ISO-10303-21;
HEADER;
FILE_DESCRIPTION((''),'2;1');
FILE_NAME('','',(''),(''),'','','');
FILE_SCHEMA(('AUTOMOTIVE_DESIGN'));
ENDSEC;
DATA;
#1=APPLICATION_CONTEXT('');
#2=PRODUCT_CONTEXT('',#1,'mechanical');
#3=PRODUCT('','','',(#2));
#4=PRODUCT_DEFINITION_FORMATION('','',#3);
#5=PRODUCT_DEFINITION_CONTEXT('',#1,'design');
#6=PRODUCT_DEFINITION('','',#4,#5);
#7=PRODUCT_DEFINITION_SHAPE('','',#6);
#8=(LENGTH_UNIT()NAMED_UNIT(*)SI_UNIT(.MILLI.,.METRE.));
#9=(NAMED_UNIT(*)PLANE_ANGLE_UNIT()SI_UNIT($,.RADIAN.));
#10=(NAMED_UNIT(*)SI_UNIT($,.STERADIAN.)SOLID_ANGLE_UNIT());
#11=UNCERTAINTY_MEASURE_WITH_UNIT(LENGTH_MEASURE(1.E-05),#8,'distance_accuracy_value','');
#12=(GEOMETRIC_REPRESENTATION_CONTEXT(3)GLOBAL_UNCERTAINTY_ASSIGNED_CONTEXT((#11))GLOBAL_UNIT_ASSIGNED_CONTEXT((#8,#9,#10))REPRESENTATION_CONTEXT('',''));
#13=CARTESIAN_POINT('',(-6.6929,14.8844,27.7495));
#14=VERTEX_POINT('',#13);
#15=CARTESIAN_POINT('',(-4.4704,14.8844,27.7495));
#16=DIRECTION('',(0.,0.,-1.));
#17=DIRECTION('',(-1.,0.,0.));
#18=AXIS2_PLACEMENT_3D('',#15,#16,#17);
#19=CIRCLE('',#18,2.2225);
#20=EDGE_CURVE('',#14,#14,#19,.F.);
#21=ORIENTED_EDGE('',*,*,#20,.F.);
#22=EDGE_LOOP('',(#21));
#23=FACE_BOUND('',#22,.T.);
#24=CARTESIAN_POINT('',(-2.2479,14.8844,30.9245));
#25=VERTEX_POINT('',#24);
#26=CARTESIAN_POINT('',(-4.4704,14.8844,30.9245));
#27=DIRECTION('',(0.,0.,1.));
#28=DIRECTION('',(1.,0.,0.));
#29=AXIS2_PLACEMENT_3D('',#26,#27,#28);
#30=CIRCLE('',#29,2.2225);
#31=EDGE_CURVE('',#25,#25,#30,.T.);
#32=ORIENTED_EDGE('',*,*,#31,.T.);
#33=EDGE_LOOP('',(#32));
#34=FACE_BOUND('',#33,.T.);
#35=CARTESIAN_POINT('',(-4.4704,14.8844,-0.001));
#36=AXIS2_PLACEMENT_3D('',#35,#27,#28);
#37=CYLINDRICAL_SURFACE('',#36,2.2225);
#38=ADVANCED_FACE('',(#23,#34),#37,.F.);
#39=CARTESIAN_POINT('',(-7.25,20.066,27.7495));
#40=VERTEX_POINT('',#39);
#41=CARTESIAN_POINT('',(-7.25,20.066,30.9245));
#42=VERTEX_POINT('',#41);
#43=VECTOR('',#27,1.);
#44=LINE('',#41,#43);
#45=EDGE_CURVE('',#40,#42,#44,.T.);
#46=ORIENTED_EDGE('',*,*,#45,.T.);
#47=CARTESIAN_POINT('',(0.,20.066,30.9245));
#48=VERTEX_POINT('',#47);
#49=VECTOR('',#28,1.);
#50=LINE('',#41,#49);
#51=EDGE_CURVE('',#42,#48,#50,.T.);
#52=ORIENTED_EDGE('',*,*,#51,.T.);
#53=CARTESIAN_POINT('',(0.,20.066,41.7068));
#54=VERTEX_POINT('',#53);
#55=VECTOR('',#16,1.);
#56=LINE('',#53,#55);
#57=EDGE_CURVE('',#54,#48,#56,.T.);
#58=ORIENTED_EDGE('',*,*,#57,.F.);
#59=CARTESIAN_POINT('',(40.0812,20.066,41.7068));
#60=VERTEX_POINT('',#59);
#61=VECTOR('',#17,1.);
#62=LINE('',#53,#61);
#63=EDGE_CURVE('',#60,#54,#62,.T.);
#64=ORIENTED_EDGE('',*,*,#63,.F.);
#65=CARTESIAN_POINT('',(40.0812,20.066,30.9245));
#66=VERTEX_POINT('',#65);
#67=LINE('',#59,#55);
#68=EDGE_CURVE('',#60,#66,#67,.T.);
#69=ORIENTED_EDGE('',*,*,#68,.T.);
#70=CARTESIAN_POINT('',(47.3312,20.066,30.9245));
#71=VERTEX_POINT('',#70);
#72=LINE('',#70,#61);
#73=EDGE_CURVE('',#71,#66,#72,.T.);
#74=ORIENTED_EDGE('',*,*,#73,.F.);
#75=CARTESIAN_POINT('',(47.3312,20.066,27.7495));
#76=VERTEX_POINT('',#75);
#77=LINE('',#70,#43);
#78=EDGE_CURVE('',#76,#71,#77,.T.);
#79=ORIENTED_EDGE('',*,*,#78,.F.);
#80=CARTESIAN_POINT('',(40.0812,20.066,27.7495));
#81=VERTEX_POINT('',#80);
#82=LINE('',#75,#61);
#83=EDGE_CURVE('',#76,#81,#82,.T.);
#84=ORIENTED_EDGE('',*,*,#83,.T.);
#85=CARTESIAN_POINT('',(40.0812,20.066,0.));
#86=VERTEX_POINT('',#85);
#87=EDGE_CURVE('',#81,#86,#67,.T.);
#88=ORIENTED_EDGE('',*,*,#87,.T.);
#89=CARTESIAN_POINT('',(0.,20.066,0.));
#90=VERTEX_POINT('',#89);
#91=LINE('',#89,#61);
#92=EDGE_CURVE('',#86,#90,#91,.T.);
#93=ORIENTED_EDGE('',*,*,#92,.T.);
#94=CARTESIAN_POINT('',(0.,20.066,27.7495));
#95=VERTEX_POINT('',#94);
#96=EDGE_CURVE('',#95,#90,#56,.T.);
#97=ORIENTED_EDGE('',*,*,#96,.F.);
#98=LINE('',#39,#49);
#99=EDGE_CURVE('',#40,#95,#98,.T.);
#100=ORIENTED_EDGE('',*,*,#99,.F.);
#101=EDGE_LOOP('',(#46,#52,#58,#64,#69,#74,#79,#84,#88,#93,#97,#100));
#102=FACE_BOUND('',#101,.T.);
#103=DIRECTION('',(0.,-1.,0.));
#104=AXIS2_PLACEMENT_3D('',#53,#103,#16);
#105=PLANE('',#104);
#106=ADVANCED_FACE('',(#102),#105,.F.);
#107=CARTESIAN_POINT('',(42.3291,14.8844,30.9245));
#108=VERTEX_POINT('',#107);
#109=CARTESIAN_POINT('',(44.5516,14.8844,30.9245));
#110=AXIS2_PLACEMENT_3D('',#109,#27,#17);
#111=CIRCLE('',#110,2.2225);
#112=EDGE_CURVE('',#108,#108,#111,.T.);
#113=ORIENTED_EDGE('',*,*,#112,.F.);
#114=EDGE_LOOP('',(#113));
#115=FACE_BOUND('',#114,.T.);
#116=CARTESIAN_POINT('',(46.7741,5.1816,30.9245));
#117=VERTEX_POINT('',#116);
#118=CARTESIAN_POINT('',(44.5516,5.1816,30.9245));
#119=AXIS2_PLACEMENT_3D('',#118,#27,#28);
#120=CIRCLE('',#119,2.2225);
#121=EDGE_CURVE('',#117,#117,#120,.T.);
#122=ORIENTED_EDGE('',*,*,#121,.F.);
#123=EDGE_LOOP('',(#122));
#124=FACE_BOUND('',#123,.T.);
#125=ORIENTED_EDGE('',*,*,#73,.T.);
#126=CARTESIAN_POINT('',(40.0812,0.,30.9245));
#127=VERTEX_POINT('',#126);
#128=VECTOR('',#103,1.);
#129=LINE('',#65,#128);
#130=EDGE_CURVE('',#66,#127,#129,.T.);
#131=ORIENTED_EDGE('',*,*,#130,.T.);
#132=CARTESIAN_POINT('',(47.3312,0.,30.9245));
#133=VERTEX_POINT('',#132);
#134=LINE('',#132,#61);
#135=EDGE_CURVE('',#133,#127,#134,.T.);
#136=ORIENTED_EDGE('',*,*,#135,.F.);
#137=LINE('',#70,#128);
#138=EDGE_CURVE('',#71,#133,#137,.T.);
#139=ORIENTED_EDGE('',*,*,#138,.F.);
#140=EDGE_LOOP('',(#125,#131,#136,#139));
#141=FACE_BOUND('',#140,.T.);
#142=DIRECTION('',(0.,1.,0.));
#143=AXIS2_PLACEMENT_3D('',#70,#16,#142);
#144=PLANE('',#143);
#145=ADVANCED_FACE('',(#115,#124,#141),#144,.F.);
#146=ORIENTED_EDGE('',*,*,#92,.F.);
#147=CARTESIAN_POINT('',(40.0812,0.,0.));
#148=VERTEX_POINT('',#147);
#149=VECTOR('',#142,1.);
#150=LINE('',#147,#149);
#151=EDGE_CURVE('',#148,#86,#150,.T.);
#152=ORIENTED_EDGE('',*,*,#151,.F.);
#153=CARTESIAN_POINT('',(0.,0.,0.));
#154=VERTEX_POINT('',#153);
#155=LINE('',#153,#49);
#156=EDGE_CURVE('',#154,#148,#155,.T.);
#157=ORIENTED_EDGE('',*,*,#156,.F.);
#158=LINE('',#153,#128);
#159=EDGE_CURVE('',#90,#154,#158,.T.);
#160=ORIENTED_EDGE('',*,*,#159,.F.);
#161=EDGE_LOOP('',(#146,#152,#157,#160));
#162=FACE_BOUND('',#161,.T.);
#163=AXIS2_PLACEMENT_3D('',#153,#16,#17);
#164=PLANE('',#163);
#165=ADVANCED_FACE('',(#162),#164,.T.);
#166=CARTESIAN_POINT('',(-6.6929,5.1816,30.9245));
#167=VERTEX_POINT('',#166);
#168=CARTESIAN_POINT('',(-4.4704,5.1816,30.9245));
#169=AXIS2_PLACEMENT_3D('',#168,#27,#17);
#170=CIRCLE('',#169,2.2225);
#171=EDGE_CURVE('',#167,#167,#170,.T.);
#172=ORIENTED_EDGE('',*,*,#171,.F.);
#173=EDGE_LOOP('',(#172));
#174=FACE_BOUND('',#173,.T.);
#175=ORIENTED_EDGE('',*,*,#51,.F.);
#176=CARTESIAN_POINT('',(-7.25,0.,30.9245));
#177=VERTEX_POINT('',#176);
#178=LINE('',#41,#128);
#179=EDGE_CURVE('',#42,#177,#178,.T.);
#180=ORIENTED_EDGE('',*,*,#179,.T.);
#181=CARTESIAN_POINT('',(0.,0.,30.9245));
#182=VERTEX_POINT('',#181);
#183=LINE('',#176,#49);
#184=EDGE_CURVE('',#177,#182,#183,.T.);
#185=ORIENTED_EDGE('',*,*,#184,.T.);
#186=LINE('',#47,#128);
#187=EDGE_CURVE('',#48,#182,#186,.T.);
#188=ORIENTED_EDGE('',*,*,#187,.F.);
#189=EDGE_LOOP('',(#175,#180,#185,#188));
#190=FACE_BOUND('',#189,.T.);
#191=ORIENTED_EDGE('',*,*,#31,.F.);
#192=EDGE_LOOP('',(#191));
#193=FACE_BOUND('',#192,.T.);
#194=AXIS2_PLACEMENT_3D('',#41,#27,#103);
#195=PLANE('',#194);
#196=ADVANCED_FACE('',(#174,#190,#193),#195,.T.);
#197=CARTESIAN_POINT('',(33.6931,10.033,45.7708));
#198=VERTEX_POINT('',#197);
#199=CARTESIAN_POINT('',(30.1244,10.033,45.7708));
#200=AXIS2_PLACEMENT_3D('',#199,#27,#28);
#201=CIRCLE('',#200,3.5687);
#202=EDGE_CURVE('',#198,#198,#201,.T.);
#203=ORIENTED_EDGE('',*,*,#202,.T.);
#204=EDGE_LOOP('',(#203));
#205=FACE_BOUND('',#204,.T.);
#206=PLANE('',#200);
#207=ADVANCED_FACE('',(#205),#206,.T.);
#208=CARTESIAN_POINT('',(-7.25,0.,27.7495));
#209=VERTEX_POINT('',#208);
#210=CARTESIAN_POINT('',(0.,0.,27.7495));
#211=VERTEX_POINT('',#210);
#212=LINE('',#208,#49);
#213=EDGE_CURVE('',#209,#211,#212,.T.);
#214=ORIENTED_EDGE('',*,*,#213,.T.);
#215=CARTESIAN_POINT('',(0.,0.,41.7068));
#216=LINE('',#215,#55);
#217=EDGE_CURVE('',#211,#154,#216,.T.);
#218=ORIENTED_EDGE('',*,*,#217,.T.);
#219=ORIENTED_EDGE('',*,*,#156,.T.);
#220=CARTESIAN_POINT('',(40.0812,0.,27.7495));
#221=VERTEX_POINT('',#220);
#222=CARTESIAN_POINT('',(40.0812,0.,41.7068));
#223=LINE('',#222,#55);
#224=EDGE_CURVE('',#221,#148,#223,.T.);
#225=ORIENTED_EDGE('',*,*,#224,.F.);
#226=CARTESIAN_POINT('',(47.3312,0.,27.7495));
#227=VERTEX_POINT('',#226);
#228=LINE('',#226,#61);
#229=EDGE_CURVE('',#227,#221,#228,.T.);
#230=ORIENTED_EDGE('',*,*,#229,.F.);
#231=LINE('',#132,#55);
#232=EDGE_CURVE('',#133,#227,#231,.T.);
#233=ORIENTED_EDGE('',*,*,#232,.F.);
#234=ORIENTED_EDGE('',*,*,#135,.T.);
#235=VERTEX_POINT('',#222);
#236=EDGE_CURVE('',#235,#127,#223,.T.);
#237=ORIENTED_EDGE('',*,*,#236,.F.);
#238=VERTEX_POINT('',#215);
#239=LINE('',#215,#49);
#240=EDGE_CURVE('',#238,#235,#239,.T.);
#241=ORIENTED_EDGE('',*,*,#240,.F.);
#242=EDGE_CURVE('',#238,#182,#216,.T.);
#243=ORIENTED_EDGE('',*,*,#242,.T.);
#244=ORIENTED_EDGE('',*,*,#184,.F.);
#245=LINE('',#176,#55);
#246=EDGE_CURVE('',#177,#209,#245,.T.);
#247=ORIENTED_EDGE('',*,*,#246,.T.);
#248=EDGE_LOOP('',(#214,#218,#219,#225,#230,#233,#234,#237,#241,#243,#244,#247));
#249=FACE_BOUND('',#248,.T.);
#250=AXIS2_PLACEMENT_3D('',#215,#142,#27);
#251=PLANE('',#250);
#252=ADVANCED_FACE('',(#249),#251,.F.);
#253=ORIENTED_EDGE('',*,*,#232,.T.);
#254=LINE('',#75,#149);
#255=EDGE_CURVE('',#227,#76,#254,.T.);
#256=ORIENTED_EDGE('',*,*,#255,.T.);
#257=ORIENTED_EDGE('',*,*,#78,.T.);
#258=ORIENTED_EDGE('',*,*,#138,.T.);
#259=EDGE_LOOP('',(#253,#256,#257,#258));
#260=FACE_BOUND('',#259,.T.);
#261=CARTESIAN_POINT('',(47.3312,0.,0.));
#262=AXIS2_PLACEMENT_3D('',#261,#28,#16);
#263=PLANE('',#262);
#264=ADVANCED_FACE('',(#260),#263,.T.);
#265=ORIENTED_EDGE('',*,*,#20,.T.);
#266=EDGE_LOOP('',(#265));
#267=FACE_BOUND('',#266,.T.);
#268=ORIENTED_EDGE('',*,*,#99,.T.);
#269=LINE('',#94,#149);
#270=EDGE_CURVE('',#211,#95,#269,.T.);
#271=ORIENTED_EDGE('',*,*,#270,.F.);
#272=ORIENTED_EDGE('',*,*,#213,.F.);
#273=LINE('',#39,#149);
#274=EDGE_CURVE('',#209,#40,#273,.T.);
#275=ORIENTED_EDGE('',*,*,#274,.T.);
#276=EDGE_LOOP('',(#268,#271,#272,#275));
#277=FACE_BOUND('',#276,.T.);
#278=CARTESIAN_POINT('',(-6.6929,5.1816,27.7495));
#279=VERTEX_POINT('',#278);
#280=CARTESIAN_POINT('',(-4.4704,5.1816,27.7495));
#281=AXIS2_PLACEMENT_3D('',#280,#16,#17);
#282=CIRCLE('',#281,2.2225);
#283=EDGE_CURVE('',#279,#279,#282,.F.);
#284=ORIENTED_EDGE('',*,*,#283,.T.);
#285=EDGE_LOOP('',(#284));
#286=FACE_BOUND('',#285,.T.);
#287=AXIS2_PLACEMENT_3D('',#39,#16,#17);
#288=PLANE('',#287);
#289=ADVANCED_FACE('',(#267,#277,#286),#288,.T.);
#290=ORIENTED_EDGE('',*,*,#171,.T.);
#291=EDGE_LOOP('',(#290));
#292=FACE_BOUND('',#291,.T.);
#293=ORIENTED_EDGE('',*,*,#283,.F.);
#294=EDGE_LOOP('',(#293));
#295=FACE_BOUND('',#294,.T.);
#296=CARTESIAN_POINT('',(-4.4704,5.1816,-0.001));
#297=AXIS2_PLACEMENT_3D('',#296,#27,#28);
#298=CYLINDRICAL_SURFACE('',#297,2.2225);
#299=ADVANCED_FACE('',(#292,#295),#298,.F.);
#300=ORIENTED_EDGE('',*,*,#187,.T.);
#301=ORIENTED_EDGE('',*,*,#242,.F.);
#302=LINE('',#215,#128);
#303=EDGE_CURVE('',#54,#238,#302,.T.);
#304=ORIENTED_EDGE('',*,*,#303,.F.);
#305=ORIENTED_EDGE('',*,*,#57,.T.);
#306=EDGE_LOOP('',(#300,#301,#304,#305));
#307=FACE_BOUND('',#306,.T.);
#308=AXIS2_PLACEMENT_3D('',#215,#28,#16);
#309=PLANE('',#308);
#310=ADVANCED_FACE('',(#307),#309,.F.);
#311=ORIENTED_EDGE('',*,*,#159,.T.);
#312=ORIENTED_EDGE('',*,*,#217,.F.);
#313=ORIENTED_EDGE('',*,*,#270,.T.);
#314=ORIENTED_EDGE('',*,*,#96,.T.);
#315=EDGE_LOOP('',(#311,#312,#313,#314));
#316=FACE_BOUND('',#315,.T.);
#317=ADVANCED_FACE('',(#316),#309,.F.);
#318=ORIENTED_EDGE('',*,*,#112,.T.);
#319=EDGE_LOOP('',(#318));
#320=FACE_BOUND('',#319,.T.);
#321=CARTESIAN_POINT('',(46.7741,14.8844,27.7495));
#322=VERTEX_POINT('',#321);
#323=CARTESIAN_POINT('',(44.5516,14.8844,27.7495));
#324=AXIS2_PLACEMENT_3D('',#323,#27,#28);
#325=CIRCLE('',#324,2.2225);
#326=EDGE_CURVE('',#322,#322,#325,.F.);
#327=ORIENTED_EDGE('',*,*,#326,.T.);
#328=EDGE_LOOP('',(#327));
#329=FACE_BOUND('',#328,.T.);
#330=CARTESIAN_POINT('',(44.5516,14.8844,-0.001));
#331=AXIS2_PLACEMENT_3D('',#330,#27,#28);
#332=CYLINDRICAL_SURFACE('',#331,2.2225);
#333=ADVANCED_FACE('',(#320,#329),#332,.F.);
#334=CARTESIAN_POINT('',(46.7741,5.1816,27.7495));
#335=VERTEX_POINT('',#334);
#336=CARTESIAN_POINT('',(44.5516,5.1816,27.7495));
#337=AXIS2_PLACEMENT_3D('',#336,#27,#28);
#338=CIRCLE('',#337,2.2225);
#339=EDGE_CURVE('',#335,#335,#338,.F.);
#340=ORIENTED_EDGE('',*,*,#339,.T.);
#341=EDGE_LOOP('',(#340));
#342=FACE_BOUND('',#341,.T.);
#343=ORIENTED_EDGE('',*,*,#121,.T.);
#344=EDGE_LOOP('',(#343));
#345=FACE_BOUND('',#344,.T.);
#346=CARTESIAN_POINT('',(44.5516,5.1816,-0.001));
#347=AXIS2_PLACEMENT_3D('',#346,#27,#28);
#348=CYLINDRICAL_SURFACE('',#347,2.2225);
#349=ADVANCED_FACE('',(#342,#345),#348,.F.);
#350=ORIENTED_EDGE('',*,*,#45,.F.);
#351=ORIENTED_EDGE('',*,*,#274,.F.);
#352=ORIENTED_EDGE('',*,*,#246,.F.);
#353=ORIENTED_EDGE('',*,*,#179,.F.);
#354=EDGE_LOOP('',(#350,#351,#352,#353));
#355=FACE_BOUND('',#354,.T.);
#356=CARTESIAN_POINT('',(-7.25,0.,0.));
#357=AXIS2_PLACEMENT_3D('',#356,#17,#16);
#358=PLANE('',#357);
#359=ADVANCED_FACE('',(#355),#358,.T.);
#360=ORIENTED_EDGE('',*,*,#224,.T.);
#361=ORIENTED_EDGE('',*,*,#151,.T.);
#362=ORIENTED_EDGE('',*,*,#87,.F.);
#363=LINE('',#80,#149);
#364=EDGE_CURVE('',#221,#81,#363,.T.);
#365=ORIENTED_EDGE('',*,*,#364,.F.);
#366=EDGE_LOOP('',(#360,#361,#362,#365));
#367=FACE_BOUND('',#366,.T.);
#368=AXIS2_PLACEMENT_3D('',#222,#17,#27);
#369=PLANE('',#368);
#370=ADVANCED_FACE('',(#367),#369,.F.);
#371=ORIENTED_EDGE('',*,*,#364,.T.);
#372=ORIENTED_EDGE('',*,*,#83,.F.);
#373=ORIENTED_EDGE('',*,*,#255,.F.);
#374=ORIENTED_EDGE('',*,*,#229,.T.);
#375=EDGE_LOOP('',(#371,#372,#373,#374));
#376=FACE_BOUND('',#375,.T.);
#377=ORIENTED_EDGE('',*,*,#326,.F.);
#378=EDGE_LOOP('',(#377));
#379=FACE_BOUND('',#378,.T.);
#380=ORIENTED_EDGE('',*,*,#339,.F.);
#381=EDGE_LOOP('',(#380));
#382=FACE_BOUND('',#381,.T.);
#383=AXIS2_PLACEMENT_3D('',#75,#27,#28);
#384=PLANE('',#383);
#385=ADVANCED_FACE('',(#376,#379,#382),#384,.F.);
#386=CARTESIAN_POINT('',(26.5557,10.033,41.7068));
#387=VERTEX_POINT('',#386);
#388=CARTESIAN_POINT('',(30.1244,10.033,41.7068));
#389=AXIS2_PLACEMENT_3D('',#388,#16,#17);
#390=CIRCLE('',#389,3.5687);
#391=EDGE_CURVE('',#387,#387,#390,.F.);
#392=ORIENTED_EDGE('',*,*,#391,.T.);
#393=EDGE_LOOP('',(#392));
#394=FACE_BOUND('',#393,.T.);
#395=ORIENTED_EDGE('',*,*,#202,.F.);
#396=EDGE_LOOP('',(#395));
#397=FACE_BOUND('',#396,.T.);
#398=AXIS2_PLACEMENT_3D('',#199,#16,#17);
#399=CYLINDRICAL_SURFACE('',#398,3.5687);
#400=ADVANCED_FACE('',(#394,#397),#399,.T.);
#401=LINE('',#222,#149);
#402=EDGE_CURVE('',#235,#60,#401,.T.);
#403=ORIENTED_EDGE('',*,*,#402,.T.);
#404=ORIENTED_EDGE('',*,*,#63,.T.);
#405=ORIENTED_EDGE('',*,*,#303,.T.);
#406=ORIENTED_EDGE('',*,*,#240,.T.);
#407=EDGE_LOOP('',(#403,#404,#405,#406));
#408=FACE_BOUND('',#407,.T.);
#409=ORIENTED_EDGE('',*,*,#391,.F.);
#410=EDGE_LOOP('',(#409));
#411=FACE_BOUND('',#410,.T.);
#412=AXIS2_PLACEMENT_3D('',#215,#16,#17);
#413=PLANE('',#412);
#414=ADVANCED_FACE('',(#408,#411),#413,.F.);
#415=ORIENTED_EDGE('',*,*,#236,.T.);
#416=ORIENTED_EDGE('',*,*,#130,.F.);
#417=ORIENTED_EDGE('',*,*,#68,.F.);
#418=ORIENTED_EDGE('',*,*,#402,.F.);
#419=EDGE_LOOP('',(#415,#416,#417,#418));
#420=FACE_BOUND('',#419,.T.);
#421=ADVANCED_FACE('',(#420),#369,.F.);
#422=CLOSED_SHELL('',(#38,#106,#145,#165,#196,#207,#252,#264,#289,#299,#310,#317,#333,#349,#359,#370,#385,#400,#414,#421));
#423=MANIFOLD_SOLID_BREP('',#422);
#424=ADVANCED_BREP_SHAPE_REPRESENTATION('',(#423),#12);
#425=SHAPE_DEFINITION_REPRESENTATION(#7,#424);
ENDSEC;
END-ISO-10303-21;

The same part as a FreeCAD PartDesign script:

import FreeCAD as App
import Part
import Sketcher
Q = App.Units.Quantity

doc = App.newDocument("Part")
body = doc.addObject("PartDesign::Body", "Body")

# Sketch on XY plane
sketch1 = body.newObject("Sketcher::SketchObject", "Sketch")
sketch1.AttachmentSupport = (doc.getObject("XY_Plane"), [""])
sketch1.MapMode = "FlatFace"
sketch1.addGeometry(Part.LineSegment(App.Vector(0, 20, 0), App.Vector(0, 0, 0)), False)
sketch1.addGeometry(Part.LineSegment(App.Vector(0, 0, 0), App.Vector(40, 0, 0)), False)
sketch1.addGeometry(Part.LineSegment(App.Vector(40, 0, 0), App.Vector(40, 20, 0)), False)
sketch1.addGeometry(Part.LineSegment(App.Vector(40, 20, 0), App.Vector(0, 20, 0)), False)
sketch1.addConstraint(Sketcher.Constraint("Coincident", 0, 2, 1, 1))
sketch1.addConstraint(Sketcher.Constraint("Coincident", 1, 2, 2, 1))
sketch1.addConstraint(Sketcher.Constraint("Coincident", 2, 2, 3, 1))
sketch1.addConstraint(Sketcher.Constraint("Coincident", 3, 2, 0, 1))
sketch1.addConstraint(Sketcher.Constraint("Vertical", 0))
sketch1.addConstraint(Sketcher.Constraint("Horizontal", 1))
sketch1.addConstraint(Sketcher.Constraint("Vertical", 2))
sketch1.addConstraint(Sketcher.Constraint("Horizontal", 3))
sketch1.addConstraint(Sketcher.Constraint("Coincident", 0, 2, -1, 1))
sketch1.addConstraint(Sketcher.Constraint("DistanceY", 0, 2, 0, 1, Q("0.79 in")))
sketch1.addConstraint(Sketcher.Constraint("DistanceX", 1, 1, 1, 2, Q("1.578 in")))
pad1 = body.newObject("PartDesign::Pad", "Pad")
pad1.Profile = sketch1
pad1.Length = Q("1.642 in")

# Sketch on YZ plane
sketch2 = body.newObject("Sketcher::SketchObject", "Sketch001")
sketch2.AttachmentSupport = (doc.getObject("YZ_Plane"), [""])
sketch2.MapMode = "FlatFace"
sketch2.AttachmentOffset = App.Placement(App.Vector(0, 0, 1.578 * 25.4), App.Rotation())
sketch2.addGeometry(Part.LineSegment(App.Vector(20.1, 30.9, 0), App.Vector(0, 30.9, 0)), False)
sketch2.addGeometry(Part.LineSegment(App.Vector(0, 30.9, 0), App.Vector(0, 27.7, 0)), False)
sketch2.addGeometry(Part.LineSegment(App.Vector(0, 27.7, 0), App.Vector(20.1, 27.7, 0)), False)
sketch2.addGeometry(Part.LineSegment(App.Vector(20.1, 27.7, 0), App.Vector(20.1, 30.9, 0)), False)
sketch2.addConstraint(Sketcher.Constraint("Coincident", 0, 2, 1, 1))
sketch2.addConstraint(Sketcher.Constraint("Coincident", 1, 2, 2, 1))
sketch2.addConstraint(Sketcher.Constraint("Coincident", 2, 2, 3, 1))
sketch2.addConstraint(Sketcher.Constraint("Coincident", 3, 2, 0, 1))
sketch2.addConstraint(Sketcher.Constraint("Horizontal", 0))
sketch2.addConstraint(Sketcher.Constraint("Vertical", 1))
sketch2.addConstraint(Sketcher.Constraint("Horizontal", 2))
sketch2.addConstraint(Sketcher.Constraint("Vertical", 3))
sketch2.addConstraint(Sketcher.Constraint("PointOnObject", 0, 2, -2))
sketch2.addConstraint(Sketcher.Constraint("DistanceX", 0, 2, 0, 1, Q("0.79 in")))
sketch2.addConstraint(Sketcher.Constraint("DistanceY", 1, 2, 1, 1, Q("0.125 in")))
sketch2.addConstraint(Sketcher.Constraint("DistanceY", -1, 1, 0, 2, Q("1.2175 in")))
pad2 = body.newObject("PartDesign::Pad", "Pad001")
pad2.Profile = sketch2
pad2.Length = 7.25
doc.recompute()

datumplane = body.newObject("PartDesign::Plane", "DatumPlane")
datumplane.AttachmentSupport = (doc.getObject("YZ_Plane"), [""])
datumplane.MapMode = "FlatFace"
datumplane.AttachmentOffset = App.Placement(App.Vector(0, 0, 0.789 * 25.4), App.Rotation())
mirrored = body.newObject("PartDesign::Mirrored", "Mirrored")
mirrored.Originals = [pad2]
mirrored.MirrorPlane = (datumplane, [""])
body.Tip = mirrored

# Sketch on XY plane
sketch3 = body.newObject("Sketcher::SketchObject", "Sketch002")
sketch3.AttachmentSupport = (doc.getObject("XY_Plane"), [""])
sketch3.MapMode = "FlatFace"
sketch3.AttachmentOffset = App.Placement(App.Vector(0, 0, 1.2175 * 25.4), App.Rotation())
sketch3.addGeometry(Part.Circle(App.Vector(44.6, 5.2, 0), App.Vector(0, 0, 1), 2.2), False)
sketch3.addConstraint(Sketcher.Constraint("Diameter", 0, Q("0.175 in")))
sketch3.addConstraint(Sketcher.Constraint("DistanceX", -1, 1, 0, 3, Q("1.754 in")))
sketch3.addConstraint(Sketcher.Constraint("DistanceY", -1, 1, 0, 3, Q("0.204 in")))
pocket1 = body.newObject("PartDesign::Pocket", "Pocket")
pocket1.Profile = sketch3
pocket1.Type = "UpToFirst"

# Sketch on XY plane
sketch4 = body.newObject("Sketcher::SketchObject", "Sketch003")
sketch4.AttachmentSupport = (doc.getObject("XY_Plane"), [""])
sketch4.MapMode = "FlatFace"
sketch4.AttachmentOffset = App.Placement(App.Vector(0, 0, 1.2175 * 25.4), App.Rotation())
sketch4.addGeometry(Part.Circle(App.Vector(-4.5, 5.2, 0), App.Vector(0, 0, 1), 2.2), False)
sketch4.addConstraint(Sketcher.Constraint("Diameter", 0, Q("0.175 in")))
sketch4.addConstraint(Sketcher.Constraint("DistanceX", 0, 3, -1, 1, Q("0.176 in")))
sketch4.addConstraint(Sketcher.Constraint("DistanceY", -1, 1, 0, 3, Q("0.204 in")))
pocket2 = body.newObject("PartDesign::Pocket", "Pocket001")
pocket2.Profile = sketch4
pocket2.Type = "UpToFirst"

# Sketch on XY plane
sketch5 = body.newObject("Sketcher::SketchObject", "Sketch004")
sketch5.AttachmentSupport = (doc.getObject("XY_Plane"), [""])
sketch5.MapMode = "FlatFace"
sketch5.AttachmentOffset = App.Placement(App.Vector(0, 0, 1.2175 * 25.4), App.Rotation())
sketch5.addGeometry(Part.Circle(App.Vector(-4.5, 14.9, 0), App.Vector(0, 0, 1), 2.2), False)
sketch5.addConstraint(Sketcher.Constraint("Diameter", 0, Q("0.175 in")))
sketch5.addConstraint(Sketcher.Constraint("DistanceX", 0, 3, -1, 1, Q("0.176 in")))
sketch5.addConstraint(Sketcher.Constraint("DistanceY", -1, 1, 0, 3, Q("0.586 in")))
pocket3 = body.newObject("PartDesign::Pocket", "Pocket002")
pocket3.Profile = sketch5
pocket3.Type = "UpToFirst"

# Sketch on XY plane
sketch6 = body.newObject("Sketcher::SketchObject", "Sketch005")
sketch6.AttachmentSupport = (doc.getObject("XY_Plane"), [""])
sketch6.MapMode = "FlatFace"
sketch6.AttachmentOffset = App.Placement(App.Vector(0, 0, 1.2175 * 25.4), App.Rotation())
sketch6.addGeometry(Part.Circle(App.Vector(44.6, 14.9, 0), App.Vector(0, 0, 1), 2.2), False)
sketch6.addConstraint(Sketcher.Constraint("Diameter", 0, Q("0.175 in")))
sketch6.addConstraint(Sketcher.Constraint("DistanceX", -1, 1, 0, 3, Q("1.754 in")))
sketch6.addConstraint(Sketcher.Constraint("DistanceY", -1, 1, 0, 3, Q("0.586 in")))
pocket4 = body.newObject("PartDesign::Pocket", "Pocket003")
pocket4.Profile = sketch6
pocket4.Type = "UpToFirst"

# Sketch on XY plane
sketch7 = body.newObject("Sketcher::SketchObject", "Sketch006")
sketch7.AttachmentSupport = (doc.getObject("XY_Plane"), [""])
sketch7.MapMode = "FlatFace"
sketch7.AttachmentOffset = App.Placement(App.Vector(0, 0, 1.642 * 25.4), App.Rotation())
sketch7.addGeometry(Part.Circle(App.Vector(30.1, 10, 0), App.Vector(0, 0, 1), 3.6), False)
sketch7.addConstraint(Sketcher.Constraint("Diameter", 0, Q("0.281 in")))
sketch7.addConstraint(Sketcher.Constraint("DistanceX", -1, 1, 0, 3, Q("1.186 in")))
sketch7.addConstraint(Sketcher.Constraint("DistanceY", -1, 1, 0, 3, Q("0.395 in")))
pad3 = body.newObject("PartDesign::Pad", "Pad002")
pad3.Profile = sketch7
pad3.Length = Q("0.16 in")

doc.recompute()
